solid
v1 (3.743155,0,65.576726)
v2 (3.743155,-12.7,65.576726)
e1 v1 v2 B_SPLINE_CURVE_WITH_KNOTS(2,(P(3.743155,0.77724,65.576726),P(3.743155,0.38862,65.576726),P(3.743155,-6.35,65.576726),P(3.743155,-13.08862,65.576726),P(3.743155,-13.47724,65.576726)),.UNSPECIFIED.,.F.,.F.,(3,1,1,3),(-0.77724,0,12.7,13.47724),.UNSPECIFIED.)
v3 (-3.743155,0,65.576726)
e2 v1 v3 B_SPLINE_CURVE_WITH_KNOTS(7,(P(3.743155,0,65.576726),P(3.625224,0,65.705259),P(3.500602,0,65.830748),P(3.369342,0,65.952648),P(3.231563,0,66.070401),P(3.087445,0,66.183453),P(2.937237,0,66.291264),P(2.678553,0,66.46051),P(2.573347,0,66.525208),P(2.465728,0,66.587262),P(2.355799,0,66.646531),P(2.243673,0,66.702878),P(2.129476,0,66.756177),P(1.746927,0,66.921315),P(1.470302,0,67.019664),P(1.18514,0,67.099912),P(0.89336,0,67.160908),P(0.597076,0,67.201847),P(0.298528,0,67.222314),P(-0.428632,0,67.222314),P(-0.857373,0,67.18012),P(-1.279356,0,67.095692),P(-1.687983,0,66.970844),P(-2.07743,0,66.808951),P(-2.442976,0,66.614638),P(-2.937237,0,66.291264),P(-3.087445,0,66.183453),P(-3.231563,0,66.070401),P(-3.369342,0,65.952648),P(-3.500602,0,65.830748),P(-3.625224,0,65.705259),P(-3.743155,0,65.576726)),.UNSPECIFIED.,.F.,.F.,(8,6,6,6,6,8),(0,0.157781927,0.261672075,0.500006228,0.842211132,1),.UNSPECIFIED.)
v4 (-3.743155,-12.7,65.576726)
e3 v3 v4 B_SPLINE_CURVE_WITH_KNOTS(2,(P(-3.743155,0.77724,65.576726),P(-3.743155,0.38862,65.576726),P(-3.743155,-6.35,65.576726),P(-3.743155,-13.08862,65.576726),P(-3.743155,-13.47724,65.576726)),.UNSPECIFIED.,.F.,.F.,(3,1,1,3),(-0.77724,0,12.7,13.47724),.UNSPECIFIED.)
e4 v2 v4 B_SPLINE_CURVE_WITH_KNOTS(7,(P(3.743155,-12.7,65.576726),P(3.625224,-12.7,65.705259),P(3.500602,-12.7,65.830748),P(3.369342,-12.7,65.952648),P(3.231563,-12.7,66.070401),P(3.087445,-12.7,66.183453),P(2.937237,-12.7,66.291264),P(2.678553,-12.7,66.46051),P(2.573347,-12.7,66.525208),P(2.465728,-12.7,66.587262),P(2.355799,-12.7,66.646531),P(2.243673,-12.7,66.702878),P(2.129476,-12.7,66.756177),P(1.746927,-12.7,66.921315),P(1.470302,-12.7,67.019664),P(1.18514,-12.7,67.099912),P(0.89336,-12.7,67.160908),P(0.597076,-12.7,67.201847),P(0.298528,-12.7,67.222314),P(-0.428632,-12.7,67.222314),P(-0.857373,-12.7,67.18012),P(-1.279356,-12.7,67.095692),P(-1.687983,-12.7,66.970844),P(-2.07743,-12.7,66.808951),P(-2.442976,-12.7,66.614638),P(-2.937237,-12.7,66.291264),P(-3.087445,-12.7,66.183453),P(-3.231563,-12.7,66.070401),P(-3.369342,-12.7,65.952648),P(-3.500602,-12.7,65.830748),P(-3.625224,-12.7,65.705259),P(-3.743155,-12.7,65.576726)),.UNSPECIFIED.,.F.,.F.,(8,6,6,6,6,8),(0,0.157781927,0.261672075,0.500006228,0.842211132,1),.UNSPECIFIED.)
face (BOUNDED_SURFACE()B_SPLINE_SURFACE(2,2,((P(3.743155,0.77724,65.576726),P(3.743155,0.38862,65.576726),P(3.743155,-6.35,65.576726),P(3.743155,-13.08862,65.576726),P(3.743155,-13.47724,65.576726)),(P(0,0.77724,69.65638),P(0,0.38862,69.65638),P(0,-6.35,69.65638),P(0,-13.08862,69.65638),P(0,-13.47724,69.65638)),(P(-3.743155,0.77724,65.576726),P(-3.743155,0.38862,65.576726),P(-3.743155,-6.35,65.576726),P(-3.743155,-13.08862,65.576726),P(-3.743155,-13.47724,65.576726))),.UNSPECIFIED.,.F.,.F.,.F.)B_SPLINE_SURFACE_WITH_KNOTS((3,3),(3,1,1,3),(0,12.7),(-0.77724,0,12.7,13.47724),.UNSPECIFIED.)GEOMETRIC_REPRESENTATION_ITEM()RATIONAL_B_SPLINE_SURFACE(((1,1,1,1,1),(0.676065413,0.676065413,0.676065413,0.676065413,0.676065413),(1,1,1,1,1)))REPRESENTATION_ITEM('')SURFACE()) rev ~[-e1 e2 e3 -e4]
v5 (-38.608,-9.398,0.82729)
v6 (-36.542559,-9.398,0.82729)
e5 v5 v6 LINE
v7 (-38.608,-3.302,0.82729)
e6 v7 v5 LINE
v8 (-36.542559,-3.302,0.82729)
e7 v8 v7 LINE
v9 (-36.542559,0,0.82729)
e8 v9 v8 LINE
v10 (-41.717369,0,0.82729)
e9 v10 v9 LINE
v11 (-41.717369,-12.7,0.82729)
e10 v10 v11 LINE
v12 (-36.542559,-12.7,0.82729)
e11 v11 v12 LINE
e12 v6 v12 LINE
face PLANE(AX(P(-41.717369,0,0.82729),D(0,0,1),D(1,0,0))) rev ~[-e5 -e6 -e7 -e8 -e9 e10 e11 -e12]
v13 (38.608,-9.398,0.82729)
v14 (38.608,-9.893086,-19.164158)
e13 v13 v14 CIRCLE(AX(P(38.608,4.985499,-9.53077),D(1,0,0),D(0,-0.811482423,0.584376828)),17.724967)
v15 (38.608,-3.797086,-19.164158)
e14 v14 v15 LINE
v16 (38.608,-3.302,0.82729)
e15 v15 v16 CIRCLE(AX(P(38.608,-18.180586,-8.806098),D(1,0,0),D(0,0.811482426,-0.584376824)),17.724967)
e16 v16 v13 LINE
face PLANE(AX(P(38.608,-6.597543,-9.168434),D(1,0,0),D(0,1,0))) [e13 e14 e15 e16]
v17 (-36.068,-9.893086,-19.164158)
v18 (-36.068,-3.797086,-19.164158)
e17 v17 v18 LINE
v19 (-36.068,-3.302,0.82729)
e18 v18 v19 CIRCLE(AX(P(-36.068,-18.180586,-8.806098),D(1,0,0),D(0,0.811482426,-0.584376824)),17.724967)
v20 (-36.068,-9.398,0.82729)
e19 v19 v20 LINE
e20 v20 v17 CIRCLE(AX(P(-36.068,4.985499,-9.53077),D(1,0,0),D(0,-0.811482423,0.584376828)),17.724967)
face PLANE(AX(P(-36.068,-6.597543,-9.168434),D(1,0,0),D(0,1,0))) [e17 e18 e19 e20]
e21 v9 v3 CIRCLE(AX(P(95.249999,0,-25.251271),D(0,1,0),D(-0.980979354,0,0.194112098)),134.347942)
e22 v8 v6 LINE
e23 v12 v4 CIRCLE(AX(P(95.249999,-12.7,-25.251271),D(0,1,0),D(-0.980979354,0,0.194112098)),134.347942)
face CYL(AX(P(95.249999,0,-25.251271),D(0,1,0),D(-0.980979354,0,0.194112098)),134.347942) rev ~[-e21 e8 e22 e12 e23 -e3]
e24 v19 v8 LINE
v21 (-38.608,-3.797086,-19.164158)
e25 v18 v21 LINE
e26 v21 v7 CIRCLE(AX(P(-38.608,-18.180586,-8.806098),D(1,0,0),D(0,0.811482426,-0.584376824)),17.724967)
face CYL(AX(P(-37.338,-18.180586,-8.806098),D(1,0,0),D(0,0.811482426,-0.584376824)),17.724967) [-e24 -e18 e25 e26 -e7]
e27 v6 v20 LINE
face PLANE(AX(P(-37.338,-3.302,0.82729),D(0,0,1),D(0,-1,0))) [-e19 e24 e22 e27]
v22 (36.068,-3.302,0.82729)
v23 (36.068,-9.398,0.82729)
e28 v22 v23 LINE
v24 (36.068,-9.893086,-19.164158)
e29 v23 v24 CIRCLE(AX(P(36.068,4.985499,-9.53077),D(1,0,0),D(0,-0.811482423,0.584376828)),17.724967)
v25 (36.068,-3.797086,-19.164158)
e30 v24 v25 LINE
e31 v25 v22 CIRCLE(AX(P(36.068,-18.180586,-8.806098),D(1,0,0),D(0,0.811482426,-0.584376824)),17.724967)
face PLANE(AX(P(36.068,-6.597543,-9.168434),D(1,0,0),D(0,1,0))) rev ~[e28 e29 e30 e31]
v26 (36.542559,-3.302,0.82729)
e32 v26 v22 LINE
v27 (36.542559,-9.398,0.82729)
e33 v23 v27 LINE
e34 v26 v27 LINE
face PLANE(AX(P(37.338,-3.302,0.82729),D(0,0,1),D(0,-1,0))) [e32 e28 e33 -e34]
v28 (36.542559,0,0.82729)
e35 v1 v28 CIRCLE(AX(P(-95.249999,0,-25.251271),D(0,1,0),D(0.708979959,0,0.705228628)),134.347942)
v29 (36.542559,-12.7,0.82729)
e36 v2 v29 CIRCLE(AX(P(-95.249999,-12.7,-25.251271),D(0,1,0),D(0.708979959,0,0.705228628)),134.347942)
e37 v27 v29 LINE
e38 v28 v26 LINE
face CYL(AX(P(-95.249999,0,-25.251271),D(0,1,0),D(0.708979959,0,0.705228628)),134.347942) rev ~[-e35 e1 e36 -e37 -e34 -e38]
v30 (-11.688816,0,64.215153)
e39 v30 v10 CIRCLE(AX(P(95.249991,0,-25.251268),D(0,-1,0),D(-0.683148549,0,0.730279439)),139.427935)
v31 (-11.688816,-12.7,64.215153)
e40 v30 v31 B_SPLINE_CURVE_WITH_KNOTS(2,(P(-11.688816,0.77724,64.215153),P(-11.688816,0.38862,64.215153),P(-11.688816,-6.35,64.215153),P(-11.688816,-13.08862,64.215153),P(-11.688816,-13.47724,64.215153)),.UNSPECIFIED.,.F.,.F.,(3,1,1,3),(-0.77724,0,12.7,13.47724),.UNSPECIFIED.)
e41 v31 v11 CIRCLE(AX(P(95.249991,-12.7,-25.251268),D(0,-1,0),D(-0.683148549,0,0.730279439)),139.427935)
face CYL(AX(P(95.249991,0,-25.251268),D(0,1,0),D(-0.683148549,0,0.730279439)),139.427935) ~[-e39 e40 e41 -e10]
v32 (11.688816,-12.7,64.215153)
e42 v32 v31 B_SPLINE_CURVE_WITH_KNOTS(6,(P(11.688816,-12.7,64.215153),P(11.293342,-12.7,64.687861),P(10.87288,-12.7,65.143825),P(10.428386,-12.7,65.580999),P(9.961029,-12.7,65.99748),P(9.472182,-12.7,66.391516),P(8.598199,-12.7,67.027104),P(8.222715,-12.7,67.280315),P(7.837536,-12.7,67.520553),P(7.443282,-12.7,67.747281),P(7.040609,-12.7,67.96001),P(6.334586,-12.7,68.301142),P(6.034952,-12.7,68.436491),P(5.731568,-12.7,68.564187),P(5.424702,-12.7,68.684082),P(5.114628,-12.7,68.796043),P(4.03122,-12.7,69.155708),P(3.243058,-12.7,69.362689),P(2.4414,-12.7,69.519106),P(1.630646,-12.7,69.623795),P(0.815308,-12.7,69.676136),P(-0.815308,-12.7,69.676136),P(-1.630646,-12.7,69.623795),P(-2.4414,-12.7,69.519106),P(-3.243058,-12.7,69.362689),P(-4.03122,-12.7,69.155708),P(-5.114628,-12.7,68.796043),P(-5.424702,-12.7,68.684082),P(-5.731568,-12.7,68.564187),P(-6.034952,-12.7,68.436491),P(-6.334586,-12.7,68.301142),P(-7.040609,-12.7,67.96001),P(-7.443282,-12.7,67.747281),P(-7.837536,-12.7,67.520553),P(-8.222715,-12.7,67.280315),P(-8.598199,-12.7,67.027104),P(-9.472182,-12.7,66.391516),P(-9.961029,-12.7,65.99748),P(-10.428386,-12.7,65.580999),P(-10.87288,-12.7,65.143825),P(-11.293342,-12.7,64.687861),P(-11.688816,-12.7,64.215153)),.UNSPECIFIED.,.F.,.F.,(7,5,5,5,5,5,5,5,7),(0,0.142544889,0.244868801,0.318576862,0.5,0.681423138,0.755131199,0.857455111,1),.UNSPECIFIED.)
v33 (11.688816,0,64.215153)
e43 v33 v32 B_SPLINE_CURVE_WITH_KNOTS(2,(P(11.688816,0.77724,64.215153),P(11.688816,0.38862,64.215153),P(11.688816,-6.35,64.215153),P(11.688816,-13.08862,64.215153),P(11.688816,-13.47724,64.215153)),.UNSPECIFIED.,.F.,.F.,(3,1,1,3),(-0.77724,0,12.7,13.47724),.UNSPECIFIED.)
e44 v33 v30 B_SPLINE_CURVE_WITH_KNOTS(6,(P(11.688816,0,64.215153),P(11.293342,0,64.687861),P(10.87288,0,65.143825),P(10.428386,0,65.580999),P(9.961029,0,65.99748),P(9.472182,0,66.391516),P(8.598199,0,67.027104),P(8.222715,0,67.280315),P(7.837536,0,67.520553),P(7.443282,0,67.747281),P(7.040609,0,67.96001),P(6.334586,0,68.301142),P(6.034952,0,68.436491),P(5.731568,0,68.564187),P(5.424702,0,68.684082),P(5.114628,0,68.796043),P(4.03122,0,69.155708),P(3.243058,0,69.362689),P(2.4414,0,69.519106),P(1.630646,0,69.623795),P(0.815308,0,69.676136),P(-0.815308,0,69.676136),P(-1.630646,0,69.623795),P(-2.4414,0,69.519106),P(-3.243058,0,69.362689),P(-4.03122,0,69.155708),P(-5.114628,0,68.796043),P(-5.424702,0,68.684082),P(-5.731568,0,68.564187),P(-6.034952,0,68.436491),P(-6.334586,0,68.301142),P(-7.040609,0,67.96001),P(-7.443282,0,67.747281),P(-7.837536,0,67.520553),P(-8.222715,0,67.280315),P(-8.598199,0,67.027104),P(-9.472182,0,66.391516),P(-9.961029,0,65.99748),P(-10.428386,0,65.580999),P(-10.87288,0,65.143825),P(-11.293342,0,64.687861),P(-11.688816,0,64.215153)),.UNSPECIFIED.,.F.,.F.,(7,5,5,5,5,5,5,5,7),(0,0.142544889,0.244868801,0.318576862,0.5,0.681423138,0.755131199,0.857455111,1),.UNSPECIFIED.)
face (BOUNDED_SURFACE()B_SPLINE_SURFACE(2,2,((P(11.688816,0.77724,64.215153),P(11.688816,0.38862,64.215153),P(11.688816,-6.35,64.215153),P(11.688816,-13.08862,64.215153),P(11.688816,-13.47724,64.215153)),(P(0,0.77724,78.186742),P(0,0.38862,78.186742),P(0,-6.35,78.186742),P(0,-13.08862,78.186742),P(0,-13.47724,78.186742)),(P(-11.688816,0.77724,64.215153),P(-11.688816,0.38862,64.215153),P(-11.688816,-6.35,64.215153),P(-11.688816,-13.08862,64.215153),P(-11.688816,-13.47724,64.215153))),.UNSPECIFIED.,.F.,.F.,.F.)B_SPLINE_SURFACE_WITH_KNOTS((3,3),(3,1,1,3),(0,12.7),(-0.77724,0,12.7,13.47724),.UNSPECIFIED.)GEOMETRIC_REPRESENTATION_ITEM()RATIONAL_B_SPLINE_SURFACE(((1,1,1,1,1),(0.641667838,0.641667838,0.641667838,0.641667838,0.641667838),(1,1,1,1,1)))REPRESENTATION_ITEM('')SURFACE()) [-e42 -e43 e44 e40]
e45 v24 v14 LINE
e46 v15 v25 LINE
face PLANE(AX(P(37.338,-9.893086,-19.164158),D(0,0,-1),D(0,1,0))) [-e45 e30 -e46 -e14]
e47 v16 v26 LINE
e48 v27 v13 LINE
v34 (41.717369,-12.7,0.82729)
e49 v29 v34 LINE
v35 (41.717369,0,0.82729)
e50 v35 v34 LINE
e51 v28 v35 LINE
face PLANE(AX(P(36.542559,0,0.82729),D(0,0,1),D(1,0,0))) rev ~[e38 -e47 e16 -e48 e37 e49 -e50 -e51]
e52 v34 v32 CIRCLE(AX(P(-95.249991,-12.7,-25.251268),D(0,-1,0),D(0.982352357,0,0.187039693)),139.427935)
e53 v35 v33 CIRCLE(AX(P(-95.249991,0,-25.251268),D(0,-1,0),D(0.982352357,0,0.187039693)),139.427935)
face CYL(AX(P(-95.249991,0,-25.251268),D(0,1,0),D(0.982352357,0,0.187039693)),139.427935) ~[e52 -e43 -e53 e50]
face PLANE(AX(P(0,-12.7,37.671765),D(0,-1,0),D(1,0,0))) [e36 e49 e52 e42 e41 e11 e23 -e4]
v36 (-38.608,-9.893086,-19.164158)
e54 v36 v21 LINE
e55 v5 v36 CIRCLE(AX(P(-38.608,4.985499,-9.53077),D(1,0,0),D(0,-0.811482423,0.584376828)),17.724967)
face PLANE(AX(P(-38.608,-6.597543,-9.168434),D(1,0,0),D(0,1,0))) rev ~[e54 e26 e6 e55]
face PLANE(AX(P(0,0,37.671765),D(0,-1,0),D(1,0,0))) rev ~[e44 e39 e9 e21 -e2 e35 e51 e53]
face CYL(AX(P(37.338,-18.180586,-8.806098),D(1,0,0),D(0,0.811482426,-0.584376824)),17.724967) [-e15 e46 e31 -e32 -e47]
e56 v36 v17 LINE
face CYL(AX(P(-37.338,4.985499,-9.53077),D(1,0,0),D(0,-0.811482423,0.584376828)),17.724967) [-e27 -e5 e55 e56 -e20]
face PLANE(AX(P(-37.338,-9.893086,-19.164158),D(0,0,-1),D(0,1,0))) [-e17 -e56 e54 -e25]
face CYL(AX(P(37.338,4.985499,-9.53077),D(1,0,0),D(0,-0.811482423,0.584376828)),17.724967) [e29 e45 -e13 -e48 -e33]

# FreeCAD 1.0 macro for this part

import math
import FreeCAD as App
import Part
import Sketcher

V = App.Vector
Q = App.Units.Quantity


def edges_at(feature, points):
    """Names of the edges that pass closest to the given points."""
    edges = feature.Shape.Edges
    near = lambda p: min(range(len(edges)), key=lambda i: edges[i].distToShape(Part.Vertex(*p))[0])
    return sorted({f"Edge{near(p) + 1}" for p in points})

doc = App.newDocument("Part")
body = doc.addObject("PartDesign::Body", "Body")

sketch1 = body.newObject("Sketcher::SketchObject", "Sketch")
sketch1.AttachmentSupport = (doc.getObject("XZ_Plane"), [""])
sketch1.MapMode = "FlatFace"
sketch1.addGeometry([
    Part.ArcOfCircle(Part.Circle(V(-95.249991, -25.251268, 0), V(0, 0, 1), 139.427935), math.radians(10.780074), math.radians(46.909826)),
    Part.ArcOfCircle(Part.Circle(V(95.249991, -25.251268, 0), V(0, 0, 1), 139.427935), math.radians(133.090174), math.radians(169.219926)),
    Part.LineSegment(V(-41.717369, 0.82729, 0), V(-36.542559, 0.82729, 0)),
    Part.ArcOfCircle(Part.Circle(V(95.249999, -25.251271, 0), V(0, 0, 1), 134.347942), math.radians(135.151982), math.radians(168.807141)),
    Part.ArcOfCircle(Part.Circle(V(-95.249999, -25.251271, 0), V(0, 0, 1), 134.347942), math.radians(11.192859), math.radians(44.848018)),
    Part.LineSegment(V(36.542559, 0.82729, 0), V(41.717369, 0.82729, 0)),
], False)
sketch1.addConstraint([
    Sketcher.Constraint("Coincident", 0, 2, 1, 1),
    Sketcher.Constraint("Coincident", 1, 2, 2, 1),
    Sketcher.Constraint("Coincident", 2, 2, 3, 2),
    Sketcher.Constraint("Coincident", 3, 1, 4, 2),
    Sketcher.Constraint("Coincident", 4, 1, 5, 1),
    Sketcher.Constraint("Coincident", 5, 2, 0, 1),
    Sketcher.Constraint("Horizontal", 2),
    Sketcher.Constraint("Horizontal", 5),
    Sketcher.Constraint("Coincident", 3, 3, 1, 3),
    Sketcher.Constraint("Coincident", 4, 3, 0, 3),
    Sketcher.Constraint("Equal", 0, 1),
    Sketcher.Constraint("Equal", 3, 4),
    Sketcher.Constraint("Symmetric", 0, 3, 1, 3, -2),
    Sketcher.Constraint("Horizontal", 2, 2, 4, 1),
    Sketcher.Constraint("DistanceX", 4, 3, 3, 3, Q("7.4999999 in")),
    Sketcher.Constraint("DistanceY", 1, 2, 0, 2, Q("2.9819998 in")),
    Sketcher.Constraint("Radius", 0, 139.427935),
    Sketcher.Constraint("Radius", 3, 134.347942),
    Sketcher.Constraint("DistanceY", 0, 3, -1, 1, 25.251268),
])
pad1 = body.newObject("PartDesign::Pad", "Pad")
pad1.Profile = sketch1
pad1.Length = Q("0.5 in")
doc.recompute()

fillet = body.newObject("PartDesign::Fillet", "Fillet")
fillet.Base = (pad1, edges_at(pad1, [(0, -6.35, 76.57)]))
fillet.Radius = Q("0.6 in")
doc.recompute()

fillet2 = body.newObject("PartDesign::Fillet", "Fillet001")
fillet2.Base = (fillet, edges_at(fillet, [(0, -6.35, 69.495)]))
fillet2.Radius = Q("0.2 in")

sketch2 = body.newObject("Sketcher::SketchObject", "Sketch001")
sketch2.AttachmentSupport = (doc.getObject("YZ_Plane"), [""])
sketch2.MapMode = "FlatFace"
sketch2.AttachmentOffset = App.Placement(V(0, 0, 1.47 * 25.4), App.Rotation())
sketch2.addGeometry([
    Part.LineSegment(V(-3.302, 0.82729, 0), V(-9.398, 0.82729, 0)),
    Part.ArcOfCircle(Part.Circle(V(4.985499, -9.53077, 0), V(0, 0, 1), 17.724967), math.radians(144.241022), math.radians(212.921711)),
    Part.LineSegment(V(-9.893086, -19.164158, 0), V(-3.797086, -19.164158, 0)),
    Part.ArcOfCircle(Part.Circle(V(-18.180586, -8.806098, 0), V(0, 0, 1), 17.724967), math.radians(-35.758978), math.radians(32.92171)),
], False)
sketch2.addConstraint([
    Sketcher.Constraint("Coincident", 0, 2, 1, 1),
    Sketcher.Constraint("Coincident", 1, 2, 2, 1),
    Sketcher.Constraint("Coincident", 2, 2, 3, 1),
    Sketcher.Constraint("Coincident", 3, 2, 0, 1),
    Sketcher.Constraint("Horizontal", 0),
    Sketcher.Constraint("Horizontal", 2),
    Sketcher.Constraint("Equal", 1, 3),
    Sketcher.Constraint("Equal", 0, 2),
    Sketcher.Constraint("DistanceX", 0, 2, 0, 1, Q("0.24 in")),
    Sketcher.Constraint("DistanceX", 0, 2, -1, 1, Q("0.37 in")),
    Sketcher.Constraint("Radius", 1, 17.724967),
    Sketcher.Constraint("DistanceX", -1, 1, 1, 3, 4.985499),
    Sketcher.Constraint("DistanceY", 1, 3, -1, 1, 9.53077),
    Sketcher.Constraint("DistanceY", 2, 2, -1, 1, 19.164158),
])
pad2 = body.newObject("PartDesign::Pad", "Pad001")
pad2.Profile = sketch2
pad2.Length = Q("0.1 in")
pad2.Midplane = True

sketch3 = body.newObject("Sketcher::SketchObject", "Sketch002")
sketch3.AttachmentSupport = (doc.getObject("YZ_Plane"), [""])
sketch3.MapMode = "FlatFace"
sketch3.AttachmentOffset = App.Placement(V(0, 0, -1.47 * 25.4), App.Rotation())
sketch3.addGeometry([
    Part.LineSegment(V(-3.302, 0.82729, 0), V(-9.398, 0.82729, 0)),
    Part.ArcOfCircle(Part.Circle(V(4.985499, -9.53077, 0), V(0, 0, 1), 17.724967), math.radians(144.241022), math.radians(212.921711)),
    Part.LineSegment(V(-9.893086, -19.164158, 0), V(-3.797086, -19.164158, 0)),
    Part.ArcOfCircle(Part.Circle(V(-18.180586, -8.806098, 0), V(0, 0, 1), 17.724967), math.radians(-35.758978), math.radians(32.92171)),
], False)
sketch3.addConstraint([
    Sketcher.Constraint("Coincident", 0, 2, 1, 1),
    Sketcher.Constraint("Coincident", 1, 2, 2, 1),
    Sketcher.Constraint("Coincident", 2, 2, 3, 1),
    Sketcher.Constraint("Coincident", 3, 2, 0, 1),
    Sketcher.Constraint("Horizontal", 0),
    Sketcher.Constraint("Horizontal", 2),
    Sketcher.Constraint("Equal", 1, 3),
    Sketcher.Constraint("Equal", 0, 2),
    Sketcher.Constraint("DistanceX", 0, 2, 0, 1, Q("0.24 in")),
    Sketcher.Constraint("DistanceX", 0, 2, -1, 1, Q("0.37 in")),
    Sketcher.Constraint("Radius", 1, 17.724967),
    Sketcher.Constraint("DistanceX", -1, 1, 1, 3, 4.985499),
    Sketcher.Constraint("DistanceY", 1, 3, -1, 1, 9.53077),
    Sketcher.Constraint("DistanceY", 2, 2, -1, 1, 19.164158),
])
pad3 = body.newObject("PartDesign::Pad", "Pad002")
pad3.Profile = sketch3
pad3.Length = Q("0.1 in")
pad3.Midplane = True

doc.recompute()
